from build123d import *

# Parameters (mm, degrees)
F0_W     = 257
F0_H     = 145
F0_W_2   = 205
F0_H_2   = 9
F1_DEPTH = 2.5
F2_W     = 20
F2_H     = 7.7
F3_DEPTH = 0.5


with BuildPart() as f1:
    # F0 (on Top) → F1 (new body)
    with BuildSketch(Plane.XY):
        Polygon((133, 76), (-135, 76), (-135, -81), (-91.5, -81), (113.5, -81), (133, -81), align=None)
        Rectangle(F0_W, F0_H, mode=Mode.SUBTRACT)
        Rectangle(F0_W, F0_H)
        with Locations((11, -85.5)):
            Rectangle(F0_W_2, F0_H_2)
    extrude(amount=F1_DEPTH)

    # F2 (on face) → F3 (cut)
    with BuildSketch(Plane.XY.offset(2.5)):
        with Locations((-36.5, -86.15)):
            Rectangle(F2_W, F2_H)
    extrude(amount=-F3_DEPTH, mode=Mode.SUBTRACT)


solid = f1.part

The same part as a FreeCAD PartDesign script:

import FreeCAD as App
import Part
import Sketcher

doc = App.newDocument("Part")
body = doc.addObject("PartDesign::Body", "Body")

# Sketch on XY plane
sketch1 = body.newObject("Sketcher::SketchObject", "Sketch")
sketch1.AttachmentSupport = (doc.getObject("XY_Plane"), [""])
sketch1.MapMode = "FlatFace"
sketch1.addGeometry([
    Part.LineSegment(App.Vector(133, 76, 0), App.Vector(-135, 76, 0)),  # 0
    Part.LineSegment(App.Vector(-135, 76, 0), App.Vector(-135, -81, 0)),  # 1
    Part.LineSegment(App.Vector(-135, -81, 0), App.Vector(-92, -81, 0)),  # 2
    Part.LineSegment(App.Vector(-92, -81, 0), App.Vector(-92, -90, 0)),  # 3
    Part.LineSegment(App.Vector(-92, -90, 0), App.Vector(114, -90, 0)),  # 4
    Part.LineSegment(App.Vector(114, -90, 0), App.Vector(114, -81, 0)),  # 5
    Part.LineSegment(App.Vector(114, -81, 0), App.Vector(133, -81, 0)),  # 6
    Part.LineSegment(App.Vector(133, -81, 0), App.Vector(133, 76, 0)),  # 7
], False)
sketch1.addConstraint([
    Sketcher.Constraint("Coincident", 0, 2, 1, 1),
    Sketcher.Constraint("Coincident", 1, 2, 2, 1),
    Sketcher.Constraint("Coincident", 2, 2, 3, 1),
    Sketcher.Constraint("Coincident", 3, 2, 4, 1),
    Sketcher.Constraint("Coincident", 4, 2, 5, 1),
    Sketcher.Constraint("Coincident", 5, 2, 6, 1),
    Sketcher.Constraint("Coincident", 6, 2, 7, 1),
    Sketcher.Constraint("Coincident", 7, 2, 0, 1),
    Sketcher.Constraint("Horizontal", 0),
    Sketcher.Constraint("Vertical", 1),
    Sketcher.Constraint("Horizontal", 2),
    Sketcher.Constraint("Vertical", 3),
    Sketcher.Constraint("Horizontal", 4),
    Sketcher.Constraint("Vertical", 5),
    Sketcher.Constraint("Horizontal", 6),
    Sketcher.Constraint("Vertical", 7),
    Sketcher.Constraint("Horizontal", 2, 2, 5, 2),
    Sketcher.Constraint("DistanceX", 0, 2, 0, 1, 268.0),
    Sketcher.Constraint("DistanceX", 4, 1, 4, 2, 205.0),
    Sketcher.Constraint("DistanceY", 1, 2, 1, 1, 157.0),
    Sketcher.Constraint("DistanceY", 3, 2, 3, 1, 9.0),
    Sketcher.Constraint("DistanceX", 2, 1, 2, 2, 43.5),
    Sketcher.Constraint("DistanceX", 0, 2, -1, 1, 135.0),
    Sketcher.Constraint("DistanceY", -1, 1, 0, 2, 76.0),
])
pad1 = body.newObject("PartDesign::Pad", "Pad")
pad1.Profile = sketch1
pad1.Length = 2.5

# Sketch on XY plane
sketch2 = body.newObject("Sketcher::SketchObject", "Sketch001")
sketch2.AttachmentSupport = (doc.getObject("XY_Plane"), [""])
sketch2.MapMode = "FlatFace"
sketch2.AttachmentOffset = App.Placement(App.Vector(0, 0, 2.5), App.Rotation())
sketch2.addGeometry([
    Part.LineSegment(App.Vector(-46, -82, 0), App.Vector(-46, -90, 0)),
    Part.LineSegment(App.Vector(-46, -90, 0), App.Vector(-26, -90, 0)),
    Part.LineSegment(App.Vector(-26, -90, 0), App.Vector(-26, -82, 0)),
    Part.LineSegment(App.Vector(-26, -82, 0), App.Vector(-46, -82, 0)),
], False)
sketch2.addConstraint([
    Sketcher.Constraint("Coincident", 0, 2, 1, 1),
    Sketcher.Constraint("Coincident", 1, 2, 2, 1),
    Sketcher.Constraint("Coincident", 2, 2, 3, 1),
    Sketcher.Constraint("Coincident", 3, 2, 0, 1),
    Sketcher.Constraint("Vertical", 0),
    Sketcher.Constraint("Horizontal", 1),
    Sketcher.Constraint("Vertical", 2),
    Sketcher.Constraint("Horizontal", 3),
    Sketcher.Constraint("DistanceX", 1, 1, 1, 2, 20.0),
    Sketcher.Constraint("DistanceY", 0, 2, 0, 1, 7.7),
    Sketcher.Constraint("DistanceY", 0, 2, -1, 1, 90.0),
    Sketcher.Constraint("DistanceX", 0, 2, -1, 1, 46.5),
])
pocket1 = body.newObject("PartDesign::Pocket", "Pocket")
pocket1.Profile = sketch2
pocket1.Length = 0.5

doc.recompute()
